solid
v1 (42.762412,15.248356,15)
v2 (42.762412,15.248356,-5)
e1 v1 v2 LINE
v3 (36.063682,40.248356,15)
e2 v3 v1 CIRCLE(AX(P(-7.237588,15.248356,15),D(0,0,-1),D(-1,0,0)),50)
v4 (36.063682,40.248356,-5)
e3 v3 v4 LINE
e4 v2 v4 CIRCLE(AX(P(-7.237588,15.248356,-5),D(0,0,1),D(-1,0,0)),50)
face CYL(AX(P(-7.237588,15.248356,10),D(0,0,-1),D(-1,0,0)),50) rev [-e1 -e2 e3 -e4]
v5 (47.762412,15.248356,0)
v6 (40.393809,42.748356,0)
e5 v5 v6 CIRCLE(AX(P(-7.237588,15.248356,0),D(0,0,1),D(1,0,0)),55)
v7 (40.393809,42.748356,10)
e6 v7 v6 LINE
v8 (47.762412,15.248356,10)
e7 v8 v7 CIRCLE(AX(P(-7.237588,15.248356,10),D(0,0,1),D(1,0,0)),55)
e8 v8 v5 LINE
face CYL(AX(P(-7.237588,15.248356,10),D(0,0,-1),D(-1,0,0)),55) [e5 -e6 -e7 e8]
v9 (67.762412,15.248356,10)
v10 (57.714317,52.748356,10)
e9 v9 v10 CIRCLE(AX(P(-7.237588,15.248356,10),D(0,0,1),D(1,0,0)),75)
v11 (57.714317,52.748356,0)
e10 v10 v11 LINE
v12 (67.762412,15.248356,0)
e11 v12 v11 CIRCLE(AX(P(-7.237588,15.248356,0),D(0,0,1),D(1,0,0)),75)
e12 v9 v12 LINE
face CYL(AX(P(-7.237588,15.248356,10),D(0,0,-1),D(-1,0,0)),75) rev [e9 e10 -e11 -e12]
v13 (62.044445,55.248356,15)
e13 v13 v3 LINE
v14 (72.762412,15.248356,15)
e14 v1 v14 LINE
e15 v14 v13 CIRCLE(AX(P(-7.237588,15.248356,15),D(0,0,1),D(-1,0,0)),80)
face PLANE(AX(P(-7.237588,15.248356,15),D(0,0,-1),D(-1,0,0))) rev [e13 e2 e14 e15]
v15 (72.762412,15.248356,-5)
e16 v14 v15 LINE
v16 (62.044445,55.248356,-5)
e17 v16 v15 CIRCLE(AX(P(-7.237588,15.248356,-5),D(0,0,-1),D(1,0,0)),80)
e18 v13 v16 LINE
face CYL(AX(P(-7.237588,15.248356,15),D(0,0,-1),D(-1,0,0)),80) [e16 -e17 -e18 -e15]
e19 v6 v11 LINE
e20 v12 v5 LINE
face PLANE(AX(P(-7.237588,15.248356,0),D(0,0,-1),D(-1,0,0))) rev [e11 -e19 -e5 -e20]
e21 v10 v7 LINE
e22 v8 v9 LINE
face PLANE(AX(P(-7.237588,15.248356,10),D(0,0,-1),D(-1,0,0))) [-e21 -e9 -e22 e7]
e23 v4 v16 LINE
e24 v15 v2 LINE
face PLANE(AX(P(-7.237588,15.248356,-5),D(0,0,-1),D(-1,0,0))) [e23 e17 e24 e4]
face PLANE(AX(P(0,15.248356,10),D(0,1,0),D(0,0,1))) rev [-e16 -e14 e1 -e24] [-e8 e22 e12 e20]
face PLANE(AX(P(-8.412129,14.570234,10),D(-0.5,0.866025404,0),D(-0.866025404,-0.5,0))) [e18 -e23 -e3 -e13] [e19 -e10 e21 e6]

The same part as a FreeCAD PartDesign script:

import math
import FreeCAD as App
import Part
import Sketcher
from FreeCAD import Vector
Q = App.Units.Quantity

doc = App.newDocument("Part")
body = doc.addObject("PartDesign::Body", "Body")

sketch1 = body.newObject("Sketcher::SketchObject", "Sketch")
sketch1.AttachmentSupport = (doc.getObject("XY_Plane"), [""])
sketch1.MapMode = "FlatFace"
sketch1.addGeometry(Part.ArcOfCircle(Part.Circle(Vector(-7, 15, 0), Vector(0, 0, 1), 50), math.radians(0), math.radians(30)), False)
sketch1.addGeometry(Part.LineSegment(Vector(43, 15, 0), Vector(48, 15, 0)), False)
sketch1.addGeometry(Part.ArcOfCircle(Part.Circle(Vector(-7, 15, 0), Vector(0, 0, 1), 55), math.radians(0), math.radians(30)), False)
sketch1.addGeometry(Part.LineSegment(Vector(40, 43, 0), Vector(36, 40, 0)), False)
sketch1.addConstraint(Sketcher.Constraint("Coincident", 0, 1, 1, 1))
sketch1.addConstraint(Sketcher.Constraint("Coincident", 1, 2, 2, 1))
sketch1.addConstraint(Sketcher.Constraint("Coincident", 2, 2, 3, 1))
sketch1.addConstraint(Sketcher.Constraint("Coincident", 3, 2, 0, 2))
sketch1.addConstraint(Sketcher.Constraint("Horizontal", 1))
sketch1.addConstraint(Sketcher.Constraint("Coincident", 2, 3, 0, 3))
sketch1.addConstraint(Sketcher.Constraint("Horizontal", 2, 3, 0, 1))
sketch1.addConstraint(Sketcher.Constraint("Radius", 0, Q("50 mm")))
sketch1.addConstraint(Sketcher.Constraint("Radius", 2, Q("55 mm")))
sketch1.addConstraint(Sketcher.Constraint("Angle", 3, Q("-150 deg")))
sketch1.addConstraint(Sketcher.Constraint("DistanceY", 0, 1, 3, 2, Q("25 mm")))
sketch1.addConstraint(Sketcher.Constraint("DistanceX", -1, 1, 2, 2, Q("40.393809 mm")))
sketch1.addConstraint(Sketcher.Constraint("DistanceY", -1, 1, 0, 3, Q("15.248356 mm")))
pad1 = body.newObject("PartDesign::Pad", "Pad")
pad1.Profile = sketch1
pad1.Length = 10
body2 = doc.addObject("PartDesign::Body", "Body001")

sketch2 = body2.newObject("Sketcher::SketchObject", "Sketch001")
sketch2.AttachmentSupport = (doc.getObject("XY_Plane001"), [""])
sketch2.MapMode = "FlatFace"
sketch2.addGeometry(Part.ArcOfCircle(Part.Circle(Vector(-7, 15, 0), Vector(0, 0, 1), 75), math.radians(0), math.radians(30)), False)
sketch2.addGeometry(Part.LineSegment(Vector(68, 15, 0), Vector(73, 15, 0)), False)
sketch2.addGeometry(Part.ArcOfCircle(Part.Circle(Vector(-7, 15, 0), Vector(0, 0, 1), 80), math.radians(0), math.radians(30)), False)
sketch2.addGeometry(Part.LineSegment(Vector(62, 55, 0), Vector(58, 53, 0)), False)
sketch2.addConstraint(Sketcher.Constraint("Coincident", 0, 1, 1, 1))
sketch2.addConstraint(Sketcher.Constraint("Coincident", 1, 2, 2, 1))
sketch2.addConstraint(Sketcher.Constraint("Coincident", 2, 2, 3, 1))
sketch2.addConstraint(Sketcher.Constraint("Coincident", 3, 2, 0, 2))
sketch2.addConstraint(Sketcher.Constraint("Horizontal", 1))
sketch2.addConstraint(Sketcher.Constraint("Coincident", 2, 3, 0, 3))
sketch2.addConstraint(Sketcher.Constraint("Horizontal", 2, 3, 0, 1))
sketch2.addConstraint(Sketcher.Constraint("Radius", 0, Q("75 mm")))
sketch2.addConstraint(Sketcher.Constraint("Radius", 2, Q("80 mm")))
sketch2.addConstraint(Sketcher.Constraint("Angle", 3, Q("-150 deg")))
sketch2.addConstraint(Sketcher.Constraint("DistanceY", 0, 1, 2, 2, Q("40 mm")))
sketch2.addConstraint(Sketcher.Constraint("DistanceX", 0, 3, -1, 1, Q("7.237588 mm")))
sketch2.addConstraint(Sketcher.Constraint("DistanceY", -1, 1, 0, 3, Q("15.248356 mm")))
pad2 = body2.newObject("PartDesign::Pad", "Pad001")
pad2.Profile = sketch2
pad2.Length = 10
body.AllowCompound = True
doc.recompute()

boolean = body.newObject("PartDesign::Boolean", "Boolean")
boolean.Type = "Fuse"
boolean.addObjects([body2])

sketch3 = body.newObject("Sketcher::SketchObject", "Sketch002")
sketch3.AttachmentSupport = (doc.getObject("XY_Plane"), [""])
sketch3.MapMode = "FlatFace"
sketch3.AttachmentOffset = App.Placement(Vector(0, 0, 10), App.Rotation())
sketch3.addGeometry(Part.LineSegment(Vector(62, 55, 0), Vector(36, 40, 0)), False)
sketch3.addGeometry(Part.ArcOfCircle(Part.Circle(Vector(-7, 15, 0), Vector(0, 0, 1), 50), math.radians(0), math.radians(30)), False)
sketch3.addGeometry(Part.LineSegment(Vector(43, 15, 0), Vector(73, 15, 0)), False)
sketch3.addGeometry(Part.ArcOfCircle(Part.Circle(Vector(-7, 15, 0), Vector(0, 0, 1), 80), math.radians(0), math.radians(30)), False)
sketch3.addConstraint(Sketcher.Constraint("Coincident", 0, 2, 1, 2))
sketch3.addConstraint(Sketcher.Constraint("Coincident", 1, 1, 2, 1))
sketch3.addConstraint(Sketcher.Constraint("Coincident", 2, 2, 3, 1))
sketch3.addConstraint(Sketcher.Constraint("Coincident", 3, 2, 0, 1))
sketch3.addConstraint(Sketcher.Constraint("Horizontal", 2))
sketch3.addConstraint(Sketcher.Constraint("Coincident", 3, 3, 1, 3))
sketch3.addConstraint(Sketcher.Constraint("Horizontal", 3, 3, 1, 1))
sketch3.addConstraint(Sketcher.Constraint("Radius", 1, Q("50 mm")))
sketch3.addConstraint(Sketcher.Constraint("Radius", 3, Q("80 mm")))
sketch3.addConstraint(Sketcher.Constraint("Angle", 0, Q("-150 deg")))
sketch3.addConstraint(Sketcher.Constraint("DistanceY", 3, 3, 0, 2, Q("25 mm")))
sketch3.addConstraint(Sketcher.Constraint("DistanceX", 1, 3, -1, 1, Q("7.237588 mm")))
sketch3.addConstraint(Sketcher.Constraint("DistanceY", -1, 1, 1, 3, Q("15.248356 mm")))
pad3 = body.newObject("PartDesign::Pad", "Pad002")
pad3.Profile = sketch3
pad3.Length = 5

sketch4 = body.newObject("Sketcher::SketchObject", "Sketch003")
sketch4.AttachmentSupport = (doc.getObject("XY_Plane"), [""])
sketch4.MapMode = "FlatFace"
sketch4.addGeometry(Part.LineSegment(Vector(36, 40, 0), Vector(62, 55, 0)), False)
sketch4.addGeometry(Part.ArcOfCircle(Part.Circle(Vector(-7, 15, 0), Vector(0, 0, 1), 80), math.radians(0), math.radians(30)), False)
sketch4.addGeometry(Part.LineSegment(Vector(73, 15, 0), Vector(43, 15, 0)), False)
sketch4.addGeometry(Part.ArcOfCircle(Part.Circle(Vector(-7, 15, 0), Vector(0, 0, 1), 50), math.radians(0), math.radians(30)), False)
sketch4.addConstraint(Sketcher.Constraint("Coincident", 0, 2, 1, 2))
sketch4.addConstraint(Sketcher.Constraint("Coincident", 1, 1, 2, 1))
sketch4.addConstraint(Sketcher.Constraint("Coincident", 2, 2, 3, 1))
sketch4.addConstraint(Sketcher.Constraint("Coincident", 3, 2, 0, 1))
sketch4.addConstraint(Sketcher.Constraint("Horizontal", 2))
sketch4.addConstraint(Sketcher.Constraint("Coincident", 3, 3, 1, 3))
sketch4.addConstraint(Sketcher.Constraint("Horizontal", 3, 3, 1, 1))
sketch4.addConstraint(Sketcher.Constraint("Radius", 1, Q("80 mm")))
sketch4.addConstraint(Sketcher.Constraint("Radius", 3, Q("50 mm")))
sketch4.addConstraint(Sketcher.Constraint("Angle", 0, Q("30 deg")))
sketch4.addConstraint(Sketcher.Constraint("DistanceY", 1, 3, 0, 2, Q("40 mm")))
sketch4.addConstraint(Sketcher.Constraint("DistanceX", 1, 3, -1, 1, Q("7.237588 mm")))
sketch4.addConstraint(Sketcher.Constraint("DistanceY", -1, 1, 1, 3, Q("15.248356 mm")))
pad4 = body.newObject("PartDesign::Pad", "Pad003")
pad4.Profile = sketch4
pad4.Length = 5
pad4.Reversed = True

doc.recompute()
